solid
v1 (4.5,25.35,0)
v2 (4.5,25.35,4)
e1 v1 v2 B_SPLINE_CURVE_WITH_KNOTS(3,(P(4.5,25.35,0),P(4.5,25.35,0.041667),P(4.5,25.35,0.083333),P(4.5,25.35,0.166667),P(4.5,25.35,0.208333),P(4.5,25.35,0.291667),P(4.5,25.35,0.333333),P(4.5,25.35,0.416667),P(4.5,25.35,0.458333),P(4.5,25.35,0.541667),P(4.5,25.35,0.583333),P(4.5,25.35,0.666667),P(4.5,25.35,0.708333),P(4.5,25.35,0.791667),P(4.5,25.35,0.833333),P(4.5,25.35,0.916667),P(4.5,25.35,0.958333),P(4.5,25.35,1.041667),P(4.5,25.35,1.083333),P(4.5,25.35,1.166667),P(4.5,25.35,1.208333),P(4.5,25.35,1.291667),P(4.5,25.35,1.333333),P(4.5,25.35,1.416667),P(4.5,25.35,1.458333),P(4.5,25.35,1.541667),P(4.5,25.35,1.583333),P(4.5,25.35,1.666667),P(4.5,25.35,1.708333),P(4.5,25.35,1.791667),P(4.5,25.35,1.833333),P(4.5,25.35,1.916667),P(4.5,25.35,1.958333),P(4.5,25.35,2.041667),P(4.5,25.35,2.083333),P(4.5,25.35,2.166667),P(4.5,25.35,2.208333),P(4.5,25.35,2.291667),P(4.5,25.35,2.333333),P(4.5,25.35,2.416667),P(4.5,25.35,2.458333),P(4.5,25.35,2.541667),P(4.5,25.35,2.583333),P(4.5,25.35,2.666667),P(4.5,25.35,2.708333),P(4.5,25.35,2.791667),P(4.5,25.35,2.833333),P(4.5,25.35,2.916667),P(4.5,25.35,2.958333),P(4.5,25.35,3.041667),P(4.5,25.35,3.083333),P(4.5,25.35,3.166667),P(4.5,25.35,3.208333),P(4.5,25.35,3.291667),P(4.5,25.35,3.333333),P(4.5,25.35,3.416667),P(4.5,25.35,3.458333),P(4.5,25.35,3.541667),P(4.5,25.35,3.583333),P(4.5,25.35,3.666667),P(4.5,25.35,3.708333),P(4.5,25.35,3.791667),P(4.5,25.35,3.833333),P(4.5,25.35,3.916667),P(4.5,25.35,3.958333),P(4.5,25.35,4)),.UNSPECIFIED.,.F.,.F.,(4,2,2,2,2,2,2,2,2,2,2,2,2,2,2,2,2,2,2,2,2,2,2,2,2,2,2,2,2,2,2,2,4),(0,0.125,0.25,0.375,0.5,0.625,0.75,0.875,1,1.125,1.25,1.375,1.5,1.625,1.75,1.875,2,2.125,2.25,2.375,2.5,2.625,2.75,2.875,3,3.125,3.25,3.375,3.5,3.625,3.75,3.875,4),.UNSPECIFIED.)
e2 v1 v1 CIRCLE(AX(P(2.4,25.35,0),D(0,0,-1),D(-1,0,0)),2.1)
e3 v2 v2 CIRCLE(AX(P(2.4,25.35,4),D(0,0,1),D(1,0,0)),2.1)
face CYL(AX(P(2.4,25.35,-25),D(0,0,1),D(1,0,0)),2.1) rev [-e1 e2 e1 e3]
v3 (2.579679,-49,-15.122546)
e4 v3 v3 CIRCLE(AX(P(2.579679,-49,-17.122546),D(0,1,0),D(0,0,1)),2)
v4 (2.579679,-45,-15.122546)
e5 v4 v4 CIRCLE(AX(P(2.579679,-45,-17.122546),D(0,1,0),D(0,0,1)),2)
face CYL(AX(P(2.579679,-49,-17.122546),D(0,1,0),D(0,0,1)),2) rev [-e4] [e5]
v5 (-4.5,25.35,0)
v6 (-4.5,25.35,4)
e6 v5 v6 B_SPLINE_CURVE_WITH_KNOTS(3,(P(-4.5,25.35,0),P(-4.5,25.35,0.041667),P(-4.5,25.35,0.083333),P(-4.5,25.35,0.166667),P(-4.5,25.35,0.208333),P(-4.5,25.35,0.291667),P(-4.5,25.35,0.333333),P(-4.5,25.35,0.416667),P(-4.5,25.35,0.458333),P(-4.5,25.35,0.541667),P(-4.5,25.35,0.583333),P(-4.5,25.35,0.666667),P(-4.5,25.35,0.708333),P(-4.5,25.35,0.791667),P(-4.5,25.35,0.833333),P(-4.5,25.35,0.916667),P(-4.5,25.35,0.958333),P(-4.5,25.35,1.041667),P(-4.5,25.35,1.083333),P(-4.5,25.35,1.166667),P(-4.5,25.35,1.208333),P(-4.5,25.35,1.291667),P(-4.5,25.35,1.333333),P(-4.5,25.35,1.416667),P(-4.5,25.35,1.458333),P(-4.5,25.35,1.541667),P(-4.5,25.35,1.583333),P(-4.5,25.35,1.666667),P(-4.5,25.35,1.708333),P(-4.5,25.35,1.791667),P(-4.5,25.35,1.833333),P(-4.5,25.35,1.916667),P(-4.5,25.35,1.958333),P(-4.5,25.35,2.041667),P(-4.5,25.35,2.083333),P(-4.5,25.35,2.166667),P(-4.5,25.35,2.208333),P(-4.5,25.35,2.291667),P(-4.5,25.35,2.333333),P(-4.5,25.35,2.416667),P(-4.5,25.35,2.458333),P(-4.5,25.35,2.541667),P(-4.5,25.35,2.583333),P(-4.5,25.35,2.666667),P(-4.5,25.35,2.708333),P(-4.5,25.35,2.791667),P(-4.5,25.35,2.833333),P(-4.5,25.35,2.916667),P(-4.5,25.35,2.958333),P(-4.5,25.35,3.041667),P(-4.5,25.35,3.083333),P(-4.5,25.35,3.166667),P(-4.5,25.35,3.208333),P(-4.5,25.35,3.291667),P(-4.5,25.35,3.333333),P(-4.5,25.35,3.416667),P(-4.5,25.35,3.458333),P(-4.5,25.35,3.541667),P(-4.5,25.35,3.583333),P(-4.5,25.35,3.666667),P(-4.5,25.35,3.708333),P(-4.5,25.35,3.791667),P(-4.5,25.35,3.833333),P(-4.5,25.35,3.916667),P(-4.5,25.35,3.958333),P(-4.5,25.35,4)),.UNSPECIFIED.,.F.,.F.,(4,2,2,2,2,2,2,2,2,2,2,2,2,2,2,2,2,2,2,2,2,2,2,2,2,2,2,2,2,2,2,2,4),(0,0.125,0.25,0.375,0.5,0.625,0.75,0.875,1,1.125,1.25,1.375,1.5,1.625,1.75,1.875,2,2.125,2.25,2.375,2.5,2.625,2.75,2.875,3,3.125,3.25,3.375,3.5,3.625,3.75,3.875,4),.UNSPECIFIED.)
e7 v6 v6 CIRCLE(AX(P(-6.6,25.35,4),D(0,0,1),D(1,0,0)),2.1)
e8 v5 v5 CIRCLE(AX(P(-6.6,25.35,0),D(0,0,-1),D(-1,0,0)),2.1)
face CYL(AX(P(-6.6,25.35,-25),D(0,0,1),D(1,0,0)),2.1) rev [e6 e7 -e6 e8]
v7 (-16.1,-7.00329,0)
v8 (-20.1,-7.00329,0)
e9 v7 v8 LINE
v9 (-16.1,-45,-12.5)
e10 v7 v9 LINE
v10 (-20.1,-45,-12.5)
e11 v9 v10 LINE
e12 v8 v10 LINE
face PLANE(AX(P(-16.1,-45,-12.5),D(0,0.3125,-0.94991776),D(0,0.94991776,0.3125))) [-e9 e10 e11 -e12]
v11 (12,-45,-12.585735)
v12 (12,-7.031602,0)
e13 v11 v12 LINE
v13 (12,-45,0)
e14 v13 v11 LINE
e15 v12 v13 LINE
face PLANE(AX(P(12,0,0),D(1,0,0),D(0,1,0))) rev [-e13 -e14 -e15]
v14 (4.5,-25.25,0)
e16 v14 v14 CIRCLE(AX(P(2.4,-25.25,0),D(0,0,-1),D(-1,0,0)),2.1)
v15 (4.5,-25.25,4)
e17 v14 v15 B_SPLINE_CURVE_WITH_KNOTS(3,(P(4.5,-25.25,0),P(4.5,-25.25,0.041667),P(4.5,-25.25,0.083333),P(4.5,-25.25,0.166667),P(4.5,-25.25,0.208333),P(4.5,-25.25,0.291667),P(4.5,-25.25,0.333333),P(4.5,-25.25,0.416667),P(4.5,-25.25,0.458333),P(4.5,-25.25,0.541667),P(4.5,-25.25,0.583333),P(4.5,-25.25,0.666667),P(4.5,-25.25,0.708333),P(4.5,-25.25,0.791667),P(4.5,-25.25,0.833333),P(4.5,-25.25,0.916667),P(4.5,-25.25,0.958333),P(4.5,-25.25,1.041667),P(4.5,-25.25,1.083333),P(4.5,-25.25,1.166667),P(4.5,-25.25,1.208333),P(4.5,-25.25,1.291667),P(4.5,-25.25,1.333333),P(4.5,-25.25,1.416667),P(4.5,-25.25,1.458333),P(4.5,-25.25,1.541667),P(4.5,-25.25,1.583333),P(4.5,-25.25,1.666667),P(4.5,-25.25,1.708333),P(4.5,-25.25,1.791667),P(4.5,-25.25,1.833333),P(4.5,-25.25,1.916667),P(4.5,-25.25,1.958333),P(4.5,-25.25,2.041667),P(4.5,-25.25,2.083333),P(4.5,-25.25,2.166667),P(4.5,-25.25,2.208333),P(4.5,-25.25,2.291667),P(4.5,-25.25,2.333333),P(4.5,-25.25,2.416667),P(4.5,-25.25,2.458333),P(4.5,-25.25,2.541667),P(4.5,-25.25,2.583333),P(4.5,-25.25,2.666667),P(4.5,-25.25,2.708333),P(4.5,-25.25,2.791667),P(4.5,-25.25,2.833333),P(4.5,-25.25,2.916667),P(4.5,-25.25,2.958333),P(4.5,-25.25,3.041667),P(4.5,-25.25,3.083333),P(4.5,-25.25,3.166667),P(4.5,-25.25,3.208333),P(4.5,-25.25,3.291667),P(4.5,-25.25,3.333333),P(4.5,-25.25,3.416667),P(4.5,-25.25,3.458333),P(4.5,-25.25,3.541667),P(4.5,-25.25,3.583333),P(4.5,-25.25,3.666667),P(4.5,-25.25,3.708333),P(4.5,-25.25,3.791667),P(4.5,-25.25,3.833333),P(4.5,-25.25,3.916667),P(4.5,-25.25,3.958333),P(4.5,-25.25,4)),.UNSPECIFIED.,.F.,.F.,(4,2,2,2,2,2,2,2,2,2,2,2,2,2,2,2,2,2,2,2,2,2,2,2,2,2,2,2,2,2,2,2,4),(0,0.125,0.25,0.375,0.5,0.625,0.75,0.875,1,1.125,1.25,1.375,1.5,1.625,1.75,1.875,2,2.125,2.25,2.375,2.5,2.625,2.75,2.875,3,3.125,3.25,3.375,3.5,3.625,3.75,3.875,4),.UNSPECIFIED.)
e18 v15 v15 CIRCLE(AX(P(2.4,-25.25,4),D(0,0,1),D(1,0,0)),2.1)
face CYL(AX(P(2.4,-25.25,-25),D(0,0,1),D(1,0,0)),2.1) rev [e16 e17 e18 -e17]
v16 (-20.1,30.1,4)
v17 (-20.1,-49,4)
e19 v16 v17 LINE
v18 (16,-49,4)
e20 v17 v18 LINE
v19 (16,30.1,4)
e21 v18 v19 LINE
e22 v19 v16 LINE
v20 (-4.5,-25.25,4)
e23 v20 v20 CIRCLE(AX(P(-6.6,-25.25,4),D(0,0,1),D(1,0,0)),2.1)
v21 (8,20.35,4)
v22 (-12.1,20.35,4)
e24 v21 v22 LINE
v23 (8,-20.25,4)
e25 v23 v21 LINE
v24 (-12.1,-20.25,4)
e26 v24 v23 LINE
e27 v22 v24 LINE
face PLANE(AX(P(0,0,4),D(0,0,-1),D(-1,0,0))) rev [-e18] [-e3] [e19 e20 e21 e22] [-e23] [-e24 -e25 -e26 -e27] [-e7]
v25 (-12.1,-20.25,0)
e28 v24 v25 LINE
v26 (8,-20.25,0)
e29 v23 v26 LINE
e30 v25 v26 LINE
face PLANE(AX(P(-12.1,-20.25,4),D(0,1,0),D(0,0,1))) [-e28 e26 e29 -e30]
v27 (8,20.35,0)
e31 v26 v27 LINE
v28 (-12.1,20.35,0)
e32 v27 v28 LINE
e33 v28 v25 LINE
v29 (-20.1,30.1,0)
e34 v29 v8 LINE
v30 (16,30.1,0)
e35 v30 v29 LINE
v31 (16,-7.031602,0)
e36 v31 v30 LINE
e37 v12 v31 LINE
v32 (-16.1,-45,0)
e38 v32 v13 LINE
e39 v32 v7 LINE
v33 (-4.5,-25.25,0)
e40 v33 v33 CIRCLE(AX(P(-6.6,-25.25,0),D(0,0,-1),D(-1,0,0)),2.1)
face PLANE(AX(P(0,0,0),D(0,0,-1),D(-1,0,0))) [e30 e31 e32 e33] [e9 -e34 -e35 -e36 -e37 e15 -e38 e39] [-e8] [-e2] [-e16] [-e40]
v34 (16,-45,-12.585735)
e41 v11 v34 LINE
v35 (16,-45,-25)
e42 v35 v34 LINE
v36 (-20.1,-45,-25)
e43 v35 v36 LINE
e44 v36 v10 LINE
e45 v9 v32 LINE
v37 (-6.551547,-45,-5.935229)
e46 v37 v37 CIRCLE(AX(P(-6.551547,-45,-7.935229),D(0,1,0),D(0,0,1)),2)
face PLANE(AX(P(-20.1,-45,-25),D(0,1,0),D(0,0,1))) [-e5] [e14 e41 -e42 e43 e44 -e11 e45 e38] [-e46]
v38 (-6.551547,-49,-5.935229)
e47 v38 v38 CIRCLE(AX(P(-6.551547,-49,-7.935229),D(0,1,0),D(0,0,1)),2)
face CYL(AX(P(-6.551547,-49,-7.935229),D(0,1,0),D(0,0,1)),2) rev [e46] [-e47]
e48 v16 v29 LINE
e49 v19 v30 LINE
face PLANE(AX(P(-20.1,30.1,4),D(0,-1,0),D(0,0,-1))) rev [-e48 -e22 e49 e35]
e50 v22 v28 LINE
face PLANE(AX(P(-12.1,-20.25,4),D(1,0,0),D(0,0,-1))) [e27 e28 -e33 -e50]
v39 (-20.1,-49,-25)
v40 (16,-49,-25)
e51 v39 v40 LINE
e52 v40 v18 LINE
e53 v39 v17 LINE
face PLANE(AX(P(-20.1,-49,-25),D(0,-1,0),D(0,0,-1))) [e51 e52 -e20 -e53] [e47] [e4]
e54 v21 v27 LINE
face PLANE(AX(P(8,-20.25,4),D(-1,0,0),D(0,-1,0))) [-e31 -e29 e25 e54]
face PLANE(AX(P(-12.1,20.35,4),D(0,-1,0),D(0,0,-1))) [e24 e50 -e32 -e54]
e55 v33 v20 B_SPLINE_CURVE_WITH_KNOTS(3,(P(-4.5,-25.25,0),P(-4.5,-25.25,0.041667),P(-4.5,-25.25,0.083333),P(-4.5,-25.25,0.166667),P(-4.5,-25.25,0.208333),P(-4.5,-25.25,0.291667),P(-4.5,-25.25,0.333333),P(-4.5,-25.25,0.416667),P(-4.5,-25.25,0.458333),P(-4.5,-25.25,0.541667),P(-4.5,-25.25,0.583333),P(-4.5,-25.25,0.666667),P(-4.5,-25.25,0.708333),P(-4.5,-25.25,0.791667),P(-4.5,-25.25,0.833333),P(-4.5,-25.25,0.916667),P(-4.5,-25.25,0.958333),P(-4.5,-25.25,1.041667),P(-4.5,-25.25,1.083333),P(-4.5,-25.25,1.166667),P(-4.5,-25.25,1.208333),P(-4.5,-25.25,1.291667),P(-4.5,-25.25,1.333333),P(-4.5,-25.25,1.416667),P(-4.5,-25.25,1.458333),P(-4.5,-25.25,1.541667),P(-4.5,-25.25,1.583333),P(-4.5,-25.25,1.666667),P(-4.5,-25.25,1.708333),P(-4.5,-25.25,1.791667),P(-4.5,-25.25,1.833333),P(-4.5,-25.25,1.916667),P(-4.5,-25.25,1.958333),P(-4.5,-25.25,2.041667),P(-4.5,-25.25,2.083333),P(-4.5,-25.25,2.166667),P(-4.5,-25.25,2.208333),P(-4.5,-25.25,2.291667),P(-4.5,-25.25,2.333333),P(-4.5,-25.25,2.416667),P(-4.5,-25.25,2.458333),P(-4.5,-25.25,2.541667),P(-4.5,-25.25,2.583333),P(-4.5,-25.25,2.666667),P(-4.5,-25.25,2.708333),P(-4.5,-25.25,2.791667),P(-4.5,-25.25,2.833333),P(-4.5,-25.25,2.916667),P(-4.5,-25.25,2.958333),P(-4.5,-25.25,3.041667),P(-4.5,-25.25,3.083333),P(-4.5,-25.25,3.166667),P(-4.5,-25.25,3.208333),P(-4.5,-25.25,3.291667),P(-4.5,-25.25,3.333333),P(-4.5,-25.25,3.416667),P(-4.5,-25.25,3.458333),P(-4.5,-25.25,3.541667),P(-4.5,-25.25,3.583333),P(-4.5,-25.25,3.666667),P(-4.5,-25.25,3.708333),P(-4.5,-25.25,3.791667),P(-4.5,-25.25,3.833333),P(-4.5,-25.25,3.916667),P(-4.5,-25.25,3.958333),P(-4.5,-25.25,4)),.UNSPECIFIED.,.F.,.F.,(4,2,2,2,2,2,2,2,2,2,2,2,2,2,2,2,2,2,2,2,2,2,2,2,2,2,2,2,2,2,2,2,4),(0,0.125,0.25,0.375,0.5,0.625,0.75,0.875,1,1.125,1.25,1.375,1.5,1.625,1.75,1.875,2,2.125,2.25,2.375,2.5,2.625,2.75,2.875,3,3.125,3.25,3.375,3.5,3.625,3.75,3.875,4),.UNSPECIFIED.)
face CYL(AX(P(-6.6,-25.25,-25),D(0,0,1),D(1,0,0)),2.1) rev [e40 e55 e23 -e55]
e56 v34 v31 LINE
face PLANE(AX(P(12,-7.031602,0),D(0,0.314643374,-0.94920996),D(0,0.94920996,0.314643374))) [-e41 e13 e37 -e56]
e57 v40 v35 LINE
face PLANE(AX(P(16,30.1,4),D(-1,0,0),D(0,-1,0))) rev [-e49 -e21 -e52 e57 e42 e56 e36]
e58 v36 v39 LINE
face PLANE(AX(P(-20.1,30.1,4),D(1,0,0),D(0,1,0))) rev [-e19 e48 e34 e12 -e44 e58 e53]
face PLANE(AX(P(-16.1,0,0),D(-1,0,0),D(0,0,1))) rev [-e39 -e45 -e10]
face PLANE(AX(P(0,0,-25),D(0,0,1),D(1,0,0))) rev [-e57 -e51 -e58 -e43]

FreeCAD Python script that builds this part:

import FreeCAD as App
import Part
import Sketcher

V = App.Vector


def add_polygon(sketch, points):
    """Adds a closed chain of lines whose ends are joined by coincident constraints."""
    first, n = sketch.GeometryCount, len(points)
    for a, b in zip(points, points[1:] + points[:1]):
        sketch.addGeometry(Part.LineSegment(App.Vector(*a, 0), App.Vector(*b, 0)), False)
    for i in range(n):
        sketch.addConstraint(Sketcher.Constraint("Coincident", first + i, 2, first + (i + 1) % n, 1))

doc = App.newDocument("Part")
body = doc.addObject("PartDesign::Body", "Body")

sketch1 = body.newObject("Sketcher::SketchObject", "Sketch")
sketch1.AttachmentSupport = (doc.getObject("XY_Plane"), [""])
sketch1.MapMode = "FlatFace"
add_polygon(sketch1, [(-20, 30), (-20, -45), (16, -45), (16, 30)])
add_polygon(sketch1, [(8, -20), (-12, -20), (-12, 20), (8, 20)])
sketch1.addConstraint([
    Sketcher.Constraint("Vertical", 0),
    Sketcher.Constraint("Horizontal", 1),
    Sketcher.Constraint("Vertical", 2),
    Sketcher.Constraint("Horizontal", 3),
    Sketcher.Constraint("Horizontal", 4),
    Sketcher.Constraint("Vertical", 5),
    Sketcher.Constraint("Horizontal", 6),
    Sketcher.Constraint("Vertical", 7),
    Sketcher.Constraint("DistanceX", 1, 1, 1, 2, 36.1),
    Sketcher.Constraint("DistanceX", 4, 2, 4, 1, 20.1),
    Sketcher.Constraint("DistanceY", 0, 2, 0, 1, 75.1),
    Sketcher.Constraint("DistanceY", 5, 1, 5, 2, 40.6),
    Sketcher.Constraint("DistanceY", 0, 2, -1, 1, 45.0),
    Sketcher.Constraint("DistanceX", -1, 1, 1, 2, 16.0),
    Sketcher.Constraint("DistanceX", -1, 1, 6, 2, 8.0),
    Sketcher.Constraint("DistanceY", 4, 2, -1, 1, 20.25),
])
pad1 = body.newObject("PartDesign::Pad", "Pad")
pad1.Profile = sketch1
pad1.Length = 4

sketch2 = body.newObject("Sketcher::SketchObject", "Sketch001")
sketch2.AttachmentSupport = (doc.getObject("XY_Plane"), [""])
sketch2.MapMode = "FlatFace"
sketch2.AttachmentOffset = App.Placement(V(0, 0, 4), App.Rotation())
add_polygon(sketch2, [(-20.1, -45), (-20.1, -49), (16, -49), (16, -45)])
sketch2.addConstraint([
    Sketcher.Constraint("Vertical", 0),
    Sketcher.Constraint("Horizontal", 1),
    Sketcher.Constraint("Vertical", 2),
    Sketcher.Constraint("Horizontal", 3),
    Sketcher.Constraint("DistanceY", 0, 2, 0, 1, 4.0),
    Sketcher.Constraint("DistanceX", 1, 1, 1, 2, 36.1),
    Sketcher.Constraint("DistanceY", 0, 2, -1, 1, 49.0),
    Sketcher.Constraint("DistanceX", -1, 1, 1, 2, 16.0),
])
pad2 = body.newObject("PartDesign::Pad", "Pad001")
pad2.Profile = sketch2
pad2.Length = 29
pad2.Reversed = True

sketch3 = body.newObject("Sketcher::SketchObject", "Sketch002")
sketch3.AttachmentSupport = (doc.getObject("YZ_Plane"), [""])
sketch3.MapMode = "FlatFace"
sketch3.AttachmentOffset = App.Placement(V(0, 0, 16), App.Rotation())
add_polygon(sketch3, [(-45, -13), (-7, 0), (-45, 0)])
sketch3.addConstraint([
    Sketcher.Constraint("Horizontal", 1),
    Sketcher.Constraint("Vertical", 2),
    Sketcher.Constraint("PointOnObject", 0, 2, -1),
    Sketcher.Constraint("Distance", 0, 40.0),
    Sketcher.Constraint("DistanceX", 1, 2, -1, 1, 45.0),
    Sketcher.Constraint("DistanceX", 1, 2, 1, 1, 37.968398),
])
pad3 = body.newObject("PartDesign::Pad", "Pad002")
pad3.Profile = sketch3
pad3.Length = 4
pad3.Reversed = True

sketch4 = body.newObject("Sketcher::SketchObject", "Sketch003")
sketch4.AttachmentSupport = (doc.getObject("YZ_Plane"), [""])
sketch4.MapMode = "FlatFace"
sketch4.AttachmentOffset = App.Placement(V(0, 0, -20.1), App.Rotation())
add_polygon(sketch4, [(-7, 0), (-45, -12), (-45, 0)])
sketch4.addConstraint([
    Sketcher.Constraint("Vertical", 1),
    Sketcher.Constraint("Horizontal", 2),
    Sketcher.Constraint("PointOnObject", 1, 2, -1),
    Sketcher.Constraint("Distance", 0, 40.0),
    Sketcher.Constraint("DistanceY", 1, 1, 1, 2, 12.5),
    Sketcher.Constraint("DistanceX", 0, 2, -1, 1, 45.0),
])
pad4 = body.newObject("PartDesign::Pad", "Pad003")
pad4.Profile = sketch4
pad4.Length = 4

sketch5 = body.newObject("Sketcher::SketchObject", "Sketch004")
sketch5.AttachmentSupport = (doc.getObject("XZ_Plane"), [""])
sketch5.MapMode = "FlatFace"
sketch5.AttachmentOffset = App.Placement(V(0, 0, 45), App.Rotation())
sketch5.addGeometry([
    Part.Circle(V(2.6, -17.1, 0), V(0, 0, 1), 2),
    Part.Circle(V(-6.6, -7.9, 0), V(0, 0, 1), 2),
], False)
sketch5.addConstraint([
    Sketcher.Constraint("Equal", 0, 1),
    Sketcher.Constraint("Diameter", 0, 4.0),
    Sketcher.Constraint("DistanceX", -1, 1, 0, 3, 2.579679),
    Sketcher.Constraint("DistanceY", 1, 3, -1, 1, 7.935229),
    Sketcher.Constraint("DistanceY", 0, 3, -1, 1, 17.122546),
    Sketcher.Constraint("DistanceX", 1, 3, -1, 1, 6.551547),
])
pocket1 = body.newObject("PartDesign::Pocket", "Pocket")
pocket1.Profile = sketch5
pocket1.Length = 4
pocket1.Reversed = True

sketch6 = body.newObject("Sketcher::SketchObject", "Sketch005")
sketch6.AttachmentSupport = (doc.getObject("XY_Plane"), [""])
sketch6.MapMode = "FlatFace"
sketch6.AttachmentOffset = App.Placement(V(0, 0, 4), App.Rotation())
sketch6.addGeometry([
    Part.Circle(V(-6.6, 25.4, 0), V(0, 0, 1), 2.1),
    Part.Circle(V(2.4, 25.4, 0), V(0, 0, 1), 2.1),
    Part.Circle(V(-6.6, -25.2, 0), V(0, 0, 1), 2.1),
    Part.Circle(V(2.4, -25.2, 0), V(0, 0, 1), 2.1),
], False)
sketch6.addConstraint([
    Sketcher.Constraint("Equal", 0, 1),
    Sketcher.Constraint("Equal", 1, 2),
    Sketcher.Constraint("Equal", 2, 3),
    Sketcher.Constraint("Horizontal", 0, 3, 1, 3),
    Sketcher.Constraint("Horizontal", 2, 3, 3, 3),
    Sketcher.Constraint("Vertical", 0, 3, 2, 3),
    Sketcher.Constraint("Vertical", 1, 3, 3, 3),
    Sketcher.Constraint("Diameter", 0, 4.2),
    Sketcher.Constraint("DistanceX", 0, 3, 1, 3, 9.0),
    Sketcher.Constraint("DistanceX", 0, 3, -1, 1, 6.6),
    Sketcher.Constraint("DistanceY", 2, 3, 0, 3, 50.6),
    Sketcher.Constraint("DistanceY", -1, 1, 0, 3, 25.35),
])
pocket2 = body.newObject("PartDesign::Pocket", "Pocket001")
pocket2.Profile = sketch6
pocket2.Type = "ThroughAll"

doc.recompute()
